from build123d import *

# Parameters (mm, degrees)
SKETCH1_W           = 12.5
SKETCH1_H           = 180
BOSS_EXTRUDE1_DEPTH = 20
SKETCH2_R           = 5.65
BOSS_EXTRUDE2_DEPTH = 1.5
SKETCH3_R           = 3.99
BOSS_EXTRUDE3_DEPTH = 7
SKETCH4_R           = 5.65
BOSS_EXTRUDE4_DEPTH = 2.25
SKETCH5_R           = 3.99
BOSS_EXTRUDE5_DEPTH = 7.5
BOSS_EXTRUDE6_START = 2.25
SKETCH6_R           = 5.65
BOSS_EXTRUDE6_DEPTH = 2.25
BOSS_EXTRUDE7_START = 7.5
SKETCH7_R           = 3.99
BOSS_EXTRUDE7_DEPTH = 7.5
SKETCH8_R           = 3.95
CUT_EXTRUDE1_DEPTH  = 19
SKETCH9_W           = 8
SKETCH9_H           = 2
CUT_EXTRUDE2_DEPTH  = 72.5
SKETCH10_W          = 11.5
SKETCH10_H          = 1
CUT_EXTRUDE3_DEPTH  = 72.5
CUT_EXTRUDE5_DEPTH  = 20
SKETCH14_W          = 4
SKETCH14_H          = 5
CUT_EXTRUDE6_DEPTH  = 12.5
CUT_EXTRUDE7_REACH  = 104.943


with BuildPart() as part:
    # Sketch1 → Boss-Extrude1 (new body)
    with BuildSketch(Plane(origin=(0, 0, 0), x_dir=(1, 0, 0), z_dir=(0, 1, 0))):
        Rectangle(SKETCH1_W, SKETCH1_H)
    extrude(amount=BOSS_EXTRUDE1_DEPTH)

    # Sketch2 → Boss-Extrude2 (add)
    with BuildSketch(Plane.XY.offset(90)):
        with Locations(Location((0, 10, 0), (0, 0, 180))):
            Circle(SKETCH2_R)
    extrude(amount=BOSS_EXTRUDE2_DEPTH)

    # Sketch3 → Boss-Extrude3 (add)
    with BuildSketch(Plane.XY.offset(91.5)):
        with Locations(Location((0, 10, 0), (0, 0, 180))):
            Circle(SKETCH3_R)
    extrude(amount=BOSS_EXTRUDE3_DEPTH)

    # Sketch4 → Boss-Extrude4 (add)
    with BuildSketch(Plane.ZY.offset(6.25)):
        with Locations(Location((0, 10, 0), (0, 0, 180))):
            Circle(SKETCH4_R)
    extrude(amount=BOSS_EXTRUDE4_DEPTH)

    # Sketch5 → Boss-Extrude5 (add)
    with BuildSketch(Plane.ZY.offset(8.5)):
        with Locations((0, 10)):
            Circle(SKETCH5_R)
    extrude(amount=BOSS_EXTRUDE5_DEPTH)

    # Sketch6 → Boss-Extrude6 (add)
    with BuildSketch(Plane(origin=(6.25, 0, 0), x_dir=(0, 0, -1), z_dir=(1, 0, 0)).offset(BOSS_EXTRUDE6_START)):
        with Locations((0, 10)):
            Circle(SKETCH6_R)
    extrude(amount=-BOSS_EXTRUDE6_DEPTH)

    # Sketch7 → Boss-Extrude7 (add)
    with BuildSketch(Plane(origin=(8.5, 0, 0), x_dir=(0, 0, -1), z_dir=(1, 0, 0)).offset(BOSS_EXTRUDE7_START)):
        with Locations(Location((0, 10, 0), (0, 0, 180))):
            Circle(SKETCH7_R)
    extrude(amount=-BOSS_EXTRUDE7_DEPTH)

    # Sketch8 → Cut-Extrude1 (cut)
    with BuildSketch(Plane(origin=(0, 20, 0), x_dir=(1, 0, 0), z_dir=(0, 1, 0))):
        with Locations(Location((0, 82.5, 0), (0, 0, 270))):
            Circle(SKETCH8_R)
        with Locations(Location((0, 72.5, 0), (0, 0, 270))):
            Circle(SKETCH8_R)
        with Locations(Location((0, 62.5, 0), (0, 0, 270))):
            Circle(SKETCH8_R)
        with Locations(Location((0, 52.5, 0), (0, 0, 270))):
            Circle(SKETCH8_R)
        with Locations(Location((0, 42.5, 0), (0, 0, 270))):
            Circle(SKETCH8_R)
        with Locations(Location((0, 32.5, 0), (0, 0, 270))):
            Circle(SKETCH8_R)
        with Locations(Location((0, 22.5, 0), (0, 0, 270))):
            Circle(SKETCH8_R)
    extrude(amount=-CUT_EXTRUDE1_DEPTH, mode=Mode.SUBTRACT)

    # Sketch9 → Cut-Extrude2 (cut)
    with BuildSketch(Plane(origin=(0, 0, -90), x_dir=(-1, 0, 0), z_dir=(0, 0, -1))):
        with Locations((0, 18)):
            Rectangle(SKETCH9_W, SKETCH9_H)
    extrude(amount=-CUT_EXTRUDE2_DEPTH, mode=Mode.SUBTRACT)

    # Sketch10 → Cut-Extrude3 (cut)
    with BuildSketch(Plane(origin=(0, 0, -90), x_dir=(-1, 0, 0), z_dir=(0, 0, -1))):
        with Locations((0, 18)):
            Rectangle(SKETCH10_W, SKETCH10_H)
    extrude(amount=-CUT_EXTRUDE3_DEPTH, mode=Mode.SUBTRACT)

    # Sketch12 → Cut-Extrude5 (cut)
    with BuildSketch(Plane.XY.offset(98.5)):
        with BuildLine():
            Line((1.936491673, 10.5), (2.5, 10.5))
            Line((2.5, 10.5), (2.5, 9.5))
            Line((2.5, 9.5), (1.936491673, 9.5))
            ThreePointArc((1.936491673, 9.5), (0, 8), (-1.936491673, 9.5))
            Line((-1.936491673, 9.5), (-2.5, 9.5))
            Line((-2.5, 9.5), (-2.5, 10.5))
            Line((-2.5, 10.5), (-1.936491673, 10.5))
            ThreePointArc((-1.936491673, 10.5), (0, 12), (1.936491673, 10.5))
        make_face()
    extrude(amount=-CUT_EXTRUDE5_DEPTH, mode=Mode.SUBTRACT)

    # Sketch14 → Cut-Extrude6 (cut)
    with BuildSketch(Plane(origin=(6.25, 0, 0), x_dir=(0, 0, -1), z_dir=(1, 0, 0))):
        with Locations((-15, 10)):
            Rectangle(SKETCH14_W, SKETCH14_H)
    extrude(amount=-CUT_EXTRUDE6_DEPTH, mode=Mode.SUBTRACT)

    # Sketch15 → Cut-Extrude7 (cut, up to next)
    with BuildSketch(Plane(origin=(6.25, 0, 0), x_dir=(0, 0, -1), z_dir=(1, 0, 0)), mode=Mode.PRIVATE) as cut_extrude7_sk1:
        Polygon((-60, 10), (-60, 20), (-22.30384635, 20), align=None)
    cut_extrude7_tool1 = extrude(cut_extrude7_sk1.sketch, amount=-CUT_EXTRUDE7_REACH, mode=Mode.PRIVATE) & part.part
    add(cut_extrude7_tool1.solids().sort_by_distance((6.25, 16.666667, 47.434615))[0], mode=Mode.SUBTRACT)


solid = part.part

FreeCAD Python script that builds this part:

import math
import FreeCAD as App
import Part
import Sketcher
Q = App.Units.Quantity

doc = App.newDocument("Part")
body = doc.addObject("PartDesign::Body", "Body")

# Sketch on XZ plane
sketch1 = doc.addObject("Sketcher::SketchObject", "Sketch")
body.addObject(sketch1)
sketch1.AttachmentSupport = (doc.XZ_Plane, [""])
sketch1.MapMode = "FlatFace"
sketch1.addGeometry([
    Part.LineSegment(App.Vector(-6, -90, 0), App.Vector(-6, 90, 0)),
    Part.LineSegment(App.Vector(-6, 90, 0), App.Vector(6, 90, 0)),
    Part.LineSegment(App.Vector(6, 90, 0), App.Vector(6, -90, 0)),
    Part.LineSegment(App.Vector(6, -90, 0), App.Vector(-6, -90, 0)),
], False)
sketch1.addConstraint([
    Sketcher.Constraint("Coincident", 0, 2, 1, 1),
    Sketcher.Constraint("Coincident", 1, 2, 2, 1),
    Sketcher.Constraint("Coincident", 2, 2, 3, 1),
    Sketcher.Constraint("Coincident", 3, 2, 0, 1),
    Sketcher.Constraint("Vertical", 0),
    Sketcher.Constraint("Horizontal", 1),
    Sketcher.Constraint("Vertical", 2),
    Sketcher.Constraint("Horizontal", 3),
    Sketcher.Constraint("Symmetric", 0, 2, 2, 2, -1, 1),
    Sketcher.Constraint("DistanceY", 0, 1, 0, 2, Q("180 mm")),
    Sketcher.Constraint("DistanceX", 1, 1, 1, 2, Q("12.5 mm")),
])
pad1 = doc.addObject("PartDesign::Pad", "Pad")
body.addObject(pad1)
pad1.Profile = sketch1
pad1.Length = 20
pad1.Reversed = True

# Sketch on XY plane
sketch2 = doc.addObject("Sketcher::SketchObject", "Sketch001")
body.addObject(sketch2)
sketch2.AttachmentSupport = (doc.XY_Plane, [""])
sketch2.MapMode = "FlatFace"
sketch2.AttachmentOffset = App.Placement(App.Vector(0, 0, 90), App.Rotation())
sketch2.addGeometry(Part.Circle(App.Vector(0, 10, 0), App.Vector(0, 0, 1), 6), False)
sketch2.addConstraint([
    Sketcher.Constraint("PointOnObject", 0, 3, -2),
    Sketcher.Constraint("Diameter", 0, Q("11.3 mm")),
    Sketcher.Constraint("DistanceY", -1, 1, 0, 3, Q("10 mm")),
])
pad2 = doc.addObject("PartDesign::Pad", "Pad001")
body.addObject(pad2)
pad2.Profile = sketch2
pad2.Length = 1.5

# Sketch on XY plane
sketch3 = doc.addObject("Sketcher::SketchObject", "Sketch002")
body.addObject(sketch3)
sketch3.AttachmentSupport = (doc.XY_Plane, [""])
sketch3.MapMode = "FlatFace"
sketch3.AttachmentOffset = App.Placement(App.Vector(0, 0, 91.5), App.Rotation())
sketch3.addGeometry(Part.Circle(App.Vector(0, 10, 0), App.Vector(0, 0, 1), 4), False)
sketch3.addConstraint([
    Sketcher.Constraint("PointOnObject", 0, 3, -2),
    Sketcher.Constraint("Diameter", 0, Q("7.98 mm")),
    Sketcher.Constraint("DistanceY", -1, 1, 0, 3, Q("10 mm")),
])
pad3 = doc.addObject("PartDesign::Pad", "Pad002")
body.addObject(pad3)
pad3.Profile = sketch3
pad3.Length = 7

# Sketch on YZ plane
sketch4 = doc.addObject("Sketcher::SketchObject", "Sketch003")
body.addObject(sketch4)
sketch4.AttachmentSupport = (doc.YZ_Plane, [""])
sketch4.MapMode = "FlatFace"
sketch4.AttachmentOffset = App.Placement(App.Vector(0, 0, -6.25), App.Rotation())
sketch4.addGeometry(Part.Circle(App.Vector(10, 0, 0), App.Vector(0, 0, 1), 6), False)
sketch4.addConstraint([
    Sketcher.Constraint("PointOnObject", 0, 3, -1),
    Sketcher.Constraint("Diameter", 0, Q("11.3 mm")),
    Sketcher.Constraint("DistanceX", -1, 1, 0, 3, Q("10 mm")),
])
pad4 = doc.addObject("PartDesign::Pad", "Pad003")
body.addObject(pad4)
pad4.Profile = sketch4
pad4.Length = 2.25
pad4.Reversed = True

# Sketch on YZ plane
sketch5 = doc.addObject("Sketcher::SketchObject", "Sketch004")
body.addObject(sketch5)
sketch5.AttachmentSupport = (doc.YZ_Plane, [""])
sketch5.MapMode = "FlatFace"
sketch5.AttachmentOffset = App.Placement(App.Vector(0, 0, -8.5), App.Rotation())
sketch5.addGeometry(Part.Circle(App.Vector(10, 0, 0), App.Vector(0, 0, 1), 4), False)
sketch5.addConstraint([
    Sketcher.Constraint("PointOnObject", 0, 3, -1),
    Sketcher.Constraint("Diameter", 0, Q("7.98 mm")),
    Sketcher.Constraint("DistanceX", -1, 1, 0, 3, Q("10 mm")),
])
pad5 = doc.addObject("PartDesign::Pad", "Pad004")
body.addObject(pad5)
pad5.Profile = sketch5
pad5.Length = 7.5
pad5.Reversed = True

# Sketch on YZ plane
sketch6 = doc.addObject("Sketcher::SketchObject", "Sketch005")
body.addObject(sketch6)
sketch6.AttachmentSupport = (doc.YZ_Plane, [""])
sketch6.MapMode = "FlatFace"
sketch6.AttachmentOffset = App.Placement(App.Vector(0, 0, 8.5), App.Rotation())
sketch6.addGeometry(Part.Circle(App.Vector(10, 0, 0), App.Vector(0, 0, 1), 6), False)
sketch6.addConstraint([
    Sketcher.Constraint("PointOnObject", 0, 3, -1),
    Sketcher.Constraint("Diameter", 0, Q("11.3 mm")),
    Sketcher.Constraint("DistanceX", -1, 1, 0, 3, Q("10 mm")),
])
pad6 = doc.addObject("PartDesign::Pad", "Pad005")
body.addObject(pad6)
pad6.Profile = sketch6
pad6.Length = 2.25
pad6.Reversed = True

# Sketch on YZ plane
sketch7 = doc.addObject("Sketcher::SketchObject", "Sketch006")
body.addObject(sketch7)
sketch7.AttachmentSupport = (doc.YZ_Plane, [""])
sketch7.MapMode = "FlatFace"
sketch7.AttachmentOffset = App.Placement(App.Vector(0, 0, 16), App.Rotation())
sketch7.addGeometry(Part.Circle(App.Vector(10, 0, 0), App.Vector(0, 0, 1), 4), False)
sketch7.addConstraint([
    Sketcher.Constraint("PointOnObject", 0, 3, -1),
    Sketcher.Constraint("Diameter", 0, Q("7.98 mm")),
    Sketcher.Constraint("DistanceX", -1, 1, 0, 3, Q("10 mm")),
])
pad7 = doc.addObject("PartDesign::Pad", "Pad006")
body.addObject(pad7)
pad7.Profile = sketch7
pad7.Length = 7.5
pad7.Reversed = True

# Sketch on XZ plane
sketch8 = doc.addObject("Sketcher::SketchObject", "Sketch007")
body.addObject(sketch8)
sketch8.AttachmentSupport = (doc.XZ_Plane, [""])
sketch8.MapMode = "FlatFace"
sketch8.AttachmentOffset = App.Placement(App.Vector(0, 0, -20), App.Rotation())
sketch8.addGeometry([
    Part.Circle(App.Vector(0, -82.5, 0), App.Vector(0, 0, 1), 4),  # 0
    Part.Circle(App.Vector(0, -72.5, 0), App.Vector(0, 0, 1), 4),  # 1
    Part.Circle(App.Vector(0, -62.5, 0), App.Vector(0, 0, 1), 4),  # 2
    Part.Circle(App.Vector(0, -52.5, 0), App.Vector(0, 0, 1), 4),  # 3
    Part.Circle(App.Vector(0, -42.5, 0), App.Vector(0, 0, 1), 4),  # 4
    Part.Circle(App.Vector(0, -32.5, 0), App.Vector(0, 0, 1), 4),  # 5
    Part.Circle(App.Vector(0, -22.5, 0), App.Vector(0, 0, 1), 4),  # 6
], False)
sketch8.addConstraint([
    Sketcher.Constraint("Equal", 0, 1),
    Sketcher.Constraint("Equal", 1, 2),
    Sketcher.Constraint("Equal", 2, 3),
    Sketcher.Constraint("Equal", 3, 4),
    Sketcher.Constraint("Equal", 4, 5),
    Sketcher.Constraint("Equal", 5, 6),
    Sketcher.Constraint("PointOnObject", 0, 3, -2),
    Sketcher.Constraint("PointOnObject", 1, 3, -2),
    Sketcher.Constraint("PointOnObject", 2, 3, -2),
    Sketcher.Constraint("PointOnObject", 3, 3, -2),
    Sketcher.Constraint("PointOnObject", 4, 3, -2),
    Sketcher.Constraint("PointOnObject", 5, 3, -2),
    Sketcher.Constraint("PointOnObject", 6, 3, -2),
    Sketcher.Constraint("Diameter", 0, Q("7.9 mm")),
    Sketcher.Constraint("DistanceY", 0, 3, 1, 3, Q("10 mm")),
    Sketcher.Constraint("DistanceY", 1, 3, 2, 3, Q("10 mm")),
    Sketcher.Constraint("DistanceY", 2, 3, 3, 3, Q("10 mm")),
    Sketcher.Constraint("DistanceY", 3, 3, 4, 3, Q("10 mm")),
    Sketcher.Constraint("DistanceY", 4, 3, 5, 3, Q("10 mm")),
    Sketcher.Constraint("DistanceY", 5, 3, 6, 3, Q("10 mm")),
    Sketcher.Constraint("DistanceY", 0, 3, -1, 1, Q("82.5 mm")),
])
pocket1 = doc.addObject("PartDesign::Pocket", "Pocket")
body.addObject(pocket1)
pocket1.Profile = sketch8
pocket1.Length = 19
pocket1.Reversed = True

# Sketch on XY plane
sketch9 = doc.addObject("Sketcher::SketchObject", "Sketch008")
body.addObject(sketch9)
sketch9.AttachmentSupport = (doc.XY_Plane, [""])
sketch9.MapMode = "FlatFace"
sketch9.AttachmentOffset = App.Placement(App.Vector(0, 0, -90), App.Rotation())
sketch9.addGeometry([
    Part.LineSegment(App.Vector(4, 19, 0), App.Vector(4, 17, 0)),
    Part.LineSegment(App.Vector(4, 17, 0), App.Vector(-4, 17, 0)),
    Part.LineSegment(App.Vector(-4, 17, 0), App.Vector(-4, 19, 0)),
    Part.LineSegment(App.Vector(-4, 19, 0), App.Vector(4, 19, 0)),
], False)
sketch9.addConstraint([
    Sketcher.Constraint("Coincident", 0, 2, 1, 1),
    Sketcher.Constraint("Coincident", 1, 2, 2, 1),
    Sketcher.Constraint("Coincident", 2, 2, 3, 1),
    Sketcher.Constraint("Coincident", 3, 2, 0, 1),
    Sketcher.Constraint("Vertical", 0),
    Sketcher.Constraint("Horizontal", 1),
    Sketcher.Constraint("Vertical", 2),
    Sketcher.Constraint("Horizontal", 3),
    Sketcher.Constraint("DistanceX", 1, 2, 1, 1, Q("8 mm")),
    Sketcher.Constraint("DistanceY", 0, 2, 0, 1, Q("2 mm")),
    Sketcher.Constraint("DistanceX", -1, 1, 0, 2, Q("4 mm")),
    Sketcher.Constraint("DistanceY", -1, 1, 0, 2, Q("17 mm")),
])
pocket2 = doc.addObject("PartDesign::Pocket", "Pocket001")
body.addObject(pocket2)
pocket2.Profile = sketch9
pocket2.Length = 72.5
pocket2.Reversed = True

# Sketch on XY plane
sketch10 = doc.addObject("Sketcher::SketchObject", "Sketch009")
body.addObject(sketch10)
sketch10.AttachmentSupport = (doc.XY_Plane, [""])
sketch10.MapMode = "FlatFace"
sketch10.AttachmentOffset = App.Placement(App.Vector(0, 0, -90), App.Rotation())
sketch10.addGeometry([
    Part.LineSegment(App.Vector(5.8, 18.5, 0), App.Vector(5.8, 17.5, 0)),
    Part.LineSegment(App.Vector(5.8, 17.5, 0), App.Vector(-5.8, 17.5, 0)),
    Part.LineSegment(App.Vector(-5.8, 17.5, 0), App.Vector(-5.8, 18.5, 0)),
    Part.LineSegment(App.Vector(-5.8, 18.5, 0), App.Vector(5.8, 18.5, 0)),
], False)
sketch10.addConstraint([
    Sketcher.Constraint("Coincident", 0, 2, 1, 1),
    Sketcher.Constraint("Coincident", 1, 2, 2, 1),
    Sketcher.Constraint("Coincident", 2, 2, 3, 1),
    Sketcher.Constraint("Coincident", 3, 2, 0, 1),
    Sketcher.Constraint("Vertical", 0),
    Sketcher.Constraint("Horizontal", 1),
    Sketcher.Constraint("Vertical", 2),
    Sketcher.Constraint("Horizontal", 3),
    Sketcher.Constraint("DistanceY", 0, 2, 0, 1, Q("1 mm")),
    Sketcher.Constraint("DistanceX", 1, 2, 1, 1, Q("11.5 mm")),
    Sketcher.Constraint("DistanceY", -1, 1, 0, 2, Q("17.5 mm")),
    Sketcher.Constraint("DistanceX", -1, 1, 0, 2, Q("5.75 mm")),
])
pocket3 = doc.addObject("PartDesign::Pocket", "Pocket002")
body.addObject(pocket3)
pocket3.Profile = sketch10
pocket3.Length = 72.5
pocket3.Reversed = True

# Sketch on XY plane
sketch11 = doc.addObject("Sketcher::SketchObject", "Sketch010")
body.addObject(sketch11)
sketch11.AttachmentSupport = (doc.XY_Plane, [""])
sketch11.MapMode = "FlatFace"
sketch11.AttachmentOffset = App.Placement(App.Vector(0, 0, 98.5), App.Rotation())
sketch11.addGeometry([
    Part.LineSegment(App.Vector(2.5, 10.5, 0), App.Vector(1.9, 10.5, 0)),  # 0
    Part.ArcOfCircle(Part.Circle(App.Vector(0, 10, 0), App.Vector(0, 0, 1), 2), math.radians(14), math.radians(166)),  # 1
    Part.LineSegment(App.Vector(-1.9, 10.5, 0), App.Vector(-2.5, 10.5, 0)),  # 2
    Part.LineSegment(App.Vector(-2.5, 10.5, 0), App.Vector(-2.5, 9.5, 0)),  # 3
    Part.LineSegment(App.Vector(-2.5, 9.5, 0), App.Vector(-1.9, 9.5, 0)),  # 4
    Part.ArcOfCircle(Part.Circle(App.Vector(0, 10, 0), App.Vector(0, 0, 1), 2), math.radians(-166), math.radians(-14)),  # 5
    Part.LineSegment(App.Vector(1.9, 9.5, 0), App.Vector(2.5, 9.5, 0)),  # 6
    Part.LineSegment(App.Vector(2.5, 9.5, 0), App.Vector(2.5, 10.5, 0)),  # 7
], False)
sketch11.addConstraint([
    Sketcher.Constraint("Coincident", 0, 2, 1, 1),
    Sketcher.Constraint("Coincident", 1, 2, 2, 1),
    Sketcher.Constraint("Coincident", 2, 2, 3, 1),
    Sketcher.Constraint("Coincident", 3, 2, 4, 1),
    Sketcher.Constraint("Coincident", 4, 2, 5, 1),
    Sketcher.Constraint("Coincident", 5, 2, 6, 1),
    Sketcher.Constraint("Coincident", 6, 2, 7, 1),
    Sketcher.Constraint("Coincident", 7, 2, 0, 1),
    Sketcher.Constraint("Horizontal", 0),
    Sketcher.Constraint("Horizontal", 2),
    Sketcher.Constraint("Vertical", 3),
    Sketcher.Constraint("Horizontal", 4),
    Sketcher.Constraint("Horizontal", 6),
    Sketcher.Constraint("Vertical", 7),
    Sketcher.Constraint("Coincident", 5, 3, 1, 3),
    Sketcher.Constraint("Equal", 1, 5),
    Sketcher.Constraint("Symmetric", 0, 2, 1, 2, -2),
    Sketcher.Constraint("Symmetric", 3, 2, 6, 2, -2),
    Sketcher.Constraint("Vertical", 1, 2, 4, 2),
    Sketcher.Constraint("Radius", 1, Q("2 mm")),
    Sketcher.Constraint("DistanceY", 3, 2, 3, 1, Q("1 mm")),
    Sketcher.Constraint("DistanceY", -1, 1, 1, 3, Q("10 mm")),
    Sketcher.Constraint("DistanceX", 2, 2, -1, 1, Q("2.5 mm")),
])
pocket4 = doc.addObject("PartDesign::Pocket", "Pocket003")
body.addObject(pocket4)
pocket4.Profile = sketch11
pocket4.Length = 20

# Sketch on YZ plane
sketch12 = doc.addObject("Sketcher::SketchObject", "Sketch011")
body.addObject(sketch12)
sketch12.AttachmentSupport = (doc.YZ_Plane, [""])
sketch12.MapMode = "FlatFace"
sketch12.AttachmentOffset = App.Placement(App.Vector(0, 0, 6.25), App.Rotation())
sketch12.addGeometry([
    Part.LineSegment(App.Vector(12.5, 17, 0), App.Vector(7.5, 17, 0)),
    Part.LineSegment(App.Vector(7.5, 17, 0), App.Vector(7.5, 13, 0)),
    Part.LineSegment(App.Vector(7.5, 13, 0), App.Vector(12.5, 13, 0)),
    Part.LineSegment(App.Vector(12.5, 13, 0), App.Vector(12.5, 17, 0)),
], False)
sketch12.addConstraint([
    Sketcher.Constraint("Coincident", 0, 2, 1, 1),
    Sketcher.Constraint("Coincident", 1, 2, 2, 1),
    Sketcher.Constraint("Coincident", 2, 2, 3, 1),
    Sketcher.Constraint("Coincident", 3, 2, 0, 1),
    Sketcher.Constraint("Horizontal", 0),
    Sketcher.Constraint("Vertical", 1),
    Sketcher.Constraint("Horizontal", 2),
    Sketcher.Constraint("Vertical", 3),
    Sketcher.Constraint("DistanceX", 0, 2, 0, 1, Q("5 mm")),
    Sketcher.Constraint("DistanceY", 1, 2, 1, 1, Q("4 mm")),
    Sketcher.Constraint("DistanceY", -1, 1, 0, 2, Q("17 mm")),
    Sketcher.Constraint("DistanceX", -1, 1, 0, 2, Q("7.5 mm")),
])
pocket5 = doc.addObject("PartDesign::Pocket", "Pocket004")
body.addObject(pocket5)
pocket5.Profile = sketch12
pocket5.Length = 12.5

# Sketch on YZ plane
sketch13 = doc.addObject("Sketcher::SketchObject", "Sketch012")
body.addObject(sketch13)
sketch13.AttachmentSupport = (doc.YZ_Plane, [""])
sketch13.MapMode = "FlatFace"
sketch13.AttachmentOffset = App.Placement(App.Vector(0, 0, 6.25), App.Rotation())
sketch13.addGeometry([
    Part.LineSegment(App.Vector(20, 60, 0), App.Vector(10, 60, 0)),
    Part.LineSegment(App.Vector(10, 60, 0), App.Vector(20, 22, 0)),
    Part.LineSegment(App.Vector(20, 22, 0), App.Vector(20, 60, 0)),
], False)
sketch13.addConstraint([
    Sketcher.Constraint("Coincident", 0, 2, 1, 1),
    Sketcher.Constraint("Coincident", 1, 2, 2, 1),
    Sketcher.Constraint("Coincident", 2, 2, 0, 1),
    Sketcher.Constraint("Horizontal", 0),
    Sketcher.Constraint("Vertical", 2),
    Sketcher.Constraint("DistanceX", 0, 2, 0, 1, Q("10 mm")),
    Sketcher.Constraint("Distance", 1, Q("39 mm")),
    Sketcher.Constraint("DistanceX", -1, 1, 0, 2, Q("10 mm")),
    Sketcher.Constraint("DistanceY", -1, 1, 0, 2, Q("60 mm")),
])
pocket6 = doc.addObject("PartDesign::Pocket", "Pocket005")
body.addObject(pocket6)
pocket6.Profile = sketch13
pocket6.Type = "UpToFirst"

doc.recompute()
